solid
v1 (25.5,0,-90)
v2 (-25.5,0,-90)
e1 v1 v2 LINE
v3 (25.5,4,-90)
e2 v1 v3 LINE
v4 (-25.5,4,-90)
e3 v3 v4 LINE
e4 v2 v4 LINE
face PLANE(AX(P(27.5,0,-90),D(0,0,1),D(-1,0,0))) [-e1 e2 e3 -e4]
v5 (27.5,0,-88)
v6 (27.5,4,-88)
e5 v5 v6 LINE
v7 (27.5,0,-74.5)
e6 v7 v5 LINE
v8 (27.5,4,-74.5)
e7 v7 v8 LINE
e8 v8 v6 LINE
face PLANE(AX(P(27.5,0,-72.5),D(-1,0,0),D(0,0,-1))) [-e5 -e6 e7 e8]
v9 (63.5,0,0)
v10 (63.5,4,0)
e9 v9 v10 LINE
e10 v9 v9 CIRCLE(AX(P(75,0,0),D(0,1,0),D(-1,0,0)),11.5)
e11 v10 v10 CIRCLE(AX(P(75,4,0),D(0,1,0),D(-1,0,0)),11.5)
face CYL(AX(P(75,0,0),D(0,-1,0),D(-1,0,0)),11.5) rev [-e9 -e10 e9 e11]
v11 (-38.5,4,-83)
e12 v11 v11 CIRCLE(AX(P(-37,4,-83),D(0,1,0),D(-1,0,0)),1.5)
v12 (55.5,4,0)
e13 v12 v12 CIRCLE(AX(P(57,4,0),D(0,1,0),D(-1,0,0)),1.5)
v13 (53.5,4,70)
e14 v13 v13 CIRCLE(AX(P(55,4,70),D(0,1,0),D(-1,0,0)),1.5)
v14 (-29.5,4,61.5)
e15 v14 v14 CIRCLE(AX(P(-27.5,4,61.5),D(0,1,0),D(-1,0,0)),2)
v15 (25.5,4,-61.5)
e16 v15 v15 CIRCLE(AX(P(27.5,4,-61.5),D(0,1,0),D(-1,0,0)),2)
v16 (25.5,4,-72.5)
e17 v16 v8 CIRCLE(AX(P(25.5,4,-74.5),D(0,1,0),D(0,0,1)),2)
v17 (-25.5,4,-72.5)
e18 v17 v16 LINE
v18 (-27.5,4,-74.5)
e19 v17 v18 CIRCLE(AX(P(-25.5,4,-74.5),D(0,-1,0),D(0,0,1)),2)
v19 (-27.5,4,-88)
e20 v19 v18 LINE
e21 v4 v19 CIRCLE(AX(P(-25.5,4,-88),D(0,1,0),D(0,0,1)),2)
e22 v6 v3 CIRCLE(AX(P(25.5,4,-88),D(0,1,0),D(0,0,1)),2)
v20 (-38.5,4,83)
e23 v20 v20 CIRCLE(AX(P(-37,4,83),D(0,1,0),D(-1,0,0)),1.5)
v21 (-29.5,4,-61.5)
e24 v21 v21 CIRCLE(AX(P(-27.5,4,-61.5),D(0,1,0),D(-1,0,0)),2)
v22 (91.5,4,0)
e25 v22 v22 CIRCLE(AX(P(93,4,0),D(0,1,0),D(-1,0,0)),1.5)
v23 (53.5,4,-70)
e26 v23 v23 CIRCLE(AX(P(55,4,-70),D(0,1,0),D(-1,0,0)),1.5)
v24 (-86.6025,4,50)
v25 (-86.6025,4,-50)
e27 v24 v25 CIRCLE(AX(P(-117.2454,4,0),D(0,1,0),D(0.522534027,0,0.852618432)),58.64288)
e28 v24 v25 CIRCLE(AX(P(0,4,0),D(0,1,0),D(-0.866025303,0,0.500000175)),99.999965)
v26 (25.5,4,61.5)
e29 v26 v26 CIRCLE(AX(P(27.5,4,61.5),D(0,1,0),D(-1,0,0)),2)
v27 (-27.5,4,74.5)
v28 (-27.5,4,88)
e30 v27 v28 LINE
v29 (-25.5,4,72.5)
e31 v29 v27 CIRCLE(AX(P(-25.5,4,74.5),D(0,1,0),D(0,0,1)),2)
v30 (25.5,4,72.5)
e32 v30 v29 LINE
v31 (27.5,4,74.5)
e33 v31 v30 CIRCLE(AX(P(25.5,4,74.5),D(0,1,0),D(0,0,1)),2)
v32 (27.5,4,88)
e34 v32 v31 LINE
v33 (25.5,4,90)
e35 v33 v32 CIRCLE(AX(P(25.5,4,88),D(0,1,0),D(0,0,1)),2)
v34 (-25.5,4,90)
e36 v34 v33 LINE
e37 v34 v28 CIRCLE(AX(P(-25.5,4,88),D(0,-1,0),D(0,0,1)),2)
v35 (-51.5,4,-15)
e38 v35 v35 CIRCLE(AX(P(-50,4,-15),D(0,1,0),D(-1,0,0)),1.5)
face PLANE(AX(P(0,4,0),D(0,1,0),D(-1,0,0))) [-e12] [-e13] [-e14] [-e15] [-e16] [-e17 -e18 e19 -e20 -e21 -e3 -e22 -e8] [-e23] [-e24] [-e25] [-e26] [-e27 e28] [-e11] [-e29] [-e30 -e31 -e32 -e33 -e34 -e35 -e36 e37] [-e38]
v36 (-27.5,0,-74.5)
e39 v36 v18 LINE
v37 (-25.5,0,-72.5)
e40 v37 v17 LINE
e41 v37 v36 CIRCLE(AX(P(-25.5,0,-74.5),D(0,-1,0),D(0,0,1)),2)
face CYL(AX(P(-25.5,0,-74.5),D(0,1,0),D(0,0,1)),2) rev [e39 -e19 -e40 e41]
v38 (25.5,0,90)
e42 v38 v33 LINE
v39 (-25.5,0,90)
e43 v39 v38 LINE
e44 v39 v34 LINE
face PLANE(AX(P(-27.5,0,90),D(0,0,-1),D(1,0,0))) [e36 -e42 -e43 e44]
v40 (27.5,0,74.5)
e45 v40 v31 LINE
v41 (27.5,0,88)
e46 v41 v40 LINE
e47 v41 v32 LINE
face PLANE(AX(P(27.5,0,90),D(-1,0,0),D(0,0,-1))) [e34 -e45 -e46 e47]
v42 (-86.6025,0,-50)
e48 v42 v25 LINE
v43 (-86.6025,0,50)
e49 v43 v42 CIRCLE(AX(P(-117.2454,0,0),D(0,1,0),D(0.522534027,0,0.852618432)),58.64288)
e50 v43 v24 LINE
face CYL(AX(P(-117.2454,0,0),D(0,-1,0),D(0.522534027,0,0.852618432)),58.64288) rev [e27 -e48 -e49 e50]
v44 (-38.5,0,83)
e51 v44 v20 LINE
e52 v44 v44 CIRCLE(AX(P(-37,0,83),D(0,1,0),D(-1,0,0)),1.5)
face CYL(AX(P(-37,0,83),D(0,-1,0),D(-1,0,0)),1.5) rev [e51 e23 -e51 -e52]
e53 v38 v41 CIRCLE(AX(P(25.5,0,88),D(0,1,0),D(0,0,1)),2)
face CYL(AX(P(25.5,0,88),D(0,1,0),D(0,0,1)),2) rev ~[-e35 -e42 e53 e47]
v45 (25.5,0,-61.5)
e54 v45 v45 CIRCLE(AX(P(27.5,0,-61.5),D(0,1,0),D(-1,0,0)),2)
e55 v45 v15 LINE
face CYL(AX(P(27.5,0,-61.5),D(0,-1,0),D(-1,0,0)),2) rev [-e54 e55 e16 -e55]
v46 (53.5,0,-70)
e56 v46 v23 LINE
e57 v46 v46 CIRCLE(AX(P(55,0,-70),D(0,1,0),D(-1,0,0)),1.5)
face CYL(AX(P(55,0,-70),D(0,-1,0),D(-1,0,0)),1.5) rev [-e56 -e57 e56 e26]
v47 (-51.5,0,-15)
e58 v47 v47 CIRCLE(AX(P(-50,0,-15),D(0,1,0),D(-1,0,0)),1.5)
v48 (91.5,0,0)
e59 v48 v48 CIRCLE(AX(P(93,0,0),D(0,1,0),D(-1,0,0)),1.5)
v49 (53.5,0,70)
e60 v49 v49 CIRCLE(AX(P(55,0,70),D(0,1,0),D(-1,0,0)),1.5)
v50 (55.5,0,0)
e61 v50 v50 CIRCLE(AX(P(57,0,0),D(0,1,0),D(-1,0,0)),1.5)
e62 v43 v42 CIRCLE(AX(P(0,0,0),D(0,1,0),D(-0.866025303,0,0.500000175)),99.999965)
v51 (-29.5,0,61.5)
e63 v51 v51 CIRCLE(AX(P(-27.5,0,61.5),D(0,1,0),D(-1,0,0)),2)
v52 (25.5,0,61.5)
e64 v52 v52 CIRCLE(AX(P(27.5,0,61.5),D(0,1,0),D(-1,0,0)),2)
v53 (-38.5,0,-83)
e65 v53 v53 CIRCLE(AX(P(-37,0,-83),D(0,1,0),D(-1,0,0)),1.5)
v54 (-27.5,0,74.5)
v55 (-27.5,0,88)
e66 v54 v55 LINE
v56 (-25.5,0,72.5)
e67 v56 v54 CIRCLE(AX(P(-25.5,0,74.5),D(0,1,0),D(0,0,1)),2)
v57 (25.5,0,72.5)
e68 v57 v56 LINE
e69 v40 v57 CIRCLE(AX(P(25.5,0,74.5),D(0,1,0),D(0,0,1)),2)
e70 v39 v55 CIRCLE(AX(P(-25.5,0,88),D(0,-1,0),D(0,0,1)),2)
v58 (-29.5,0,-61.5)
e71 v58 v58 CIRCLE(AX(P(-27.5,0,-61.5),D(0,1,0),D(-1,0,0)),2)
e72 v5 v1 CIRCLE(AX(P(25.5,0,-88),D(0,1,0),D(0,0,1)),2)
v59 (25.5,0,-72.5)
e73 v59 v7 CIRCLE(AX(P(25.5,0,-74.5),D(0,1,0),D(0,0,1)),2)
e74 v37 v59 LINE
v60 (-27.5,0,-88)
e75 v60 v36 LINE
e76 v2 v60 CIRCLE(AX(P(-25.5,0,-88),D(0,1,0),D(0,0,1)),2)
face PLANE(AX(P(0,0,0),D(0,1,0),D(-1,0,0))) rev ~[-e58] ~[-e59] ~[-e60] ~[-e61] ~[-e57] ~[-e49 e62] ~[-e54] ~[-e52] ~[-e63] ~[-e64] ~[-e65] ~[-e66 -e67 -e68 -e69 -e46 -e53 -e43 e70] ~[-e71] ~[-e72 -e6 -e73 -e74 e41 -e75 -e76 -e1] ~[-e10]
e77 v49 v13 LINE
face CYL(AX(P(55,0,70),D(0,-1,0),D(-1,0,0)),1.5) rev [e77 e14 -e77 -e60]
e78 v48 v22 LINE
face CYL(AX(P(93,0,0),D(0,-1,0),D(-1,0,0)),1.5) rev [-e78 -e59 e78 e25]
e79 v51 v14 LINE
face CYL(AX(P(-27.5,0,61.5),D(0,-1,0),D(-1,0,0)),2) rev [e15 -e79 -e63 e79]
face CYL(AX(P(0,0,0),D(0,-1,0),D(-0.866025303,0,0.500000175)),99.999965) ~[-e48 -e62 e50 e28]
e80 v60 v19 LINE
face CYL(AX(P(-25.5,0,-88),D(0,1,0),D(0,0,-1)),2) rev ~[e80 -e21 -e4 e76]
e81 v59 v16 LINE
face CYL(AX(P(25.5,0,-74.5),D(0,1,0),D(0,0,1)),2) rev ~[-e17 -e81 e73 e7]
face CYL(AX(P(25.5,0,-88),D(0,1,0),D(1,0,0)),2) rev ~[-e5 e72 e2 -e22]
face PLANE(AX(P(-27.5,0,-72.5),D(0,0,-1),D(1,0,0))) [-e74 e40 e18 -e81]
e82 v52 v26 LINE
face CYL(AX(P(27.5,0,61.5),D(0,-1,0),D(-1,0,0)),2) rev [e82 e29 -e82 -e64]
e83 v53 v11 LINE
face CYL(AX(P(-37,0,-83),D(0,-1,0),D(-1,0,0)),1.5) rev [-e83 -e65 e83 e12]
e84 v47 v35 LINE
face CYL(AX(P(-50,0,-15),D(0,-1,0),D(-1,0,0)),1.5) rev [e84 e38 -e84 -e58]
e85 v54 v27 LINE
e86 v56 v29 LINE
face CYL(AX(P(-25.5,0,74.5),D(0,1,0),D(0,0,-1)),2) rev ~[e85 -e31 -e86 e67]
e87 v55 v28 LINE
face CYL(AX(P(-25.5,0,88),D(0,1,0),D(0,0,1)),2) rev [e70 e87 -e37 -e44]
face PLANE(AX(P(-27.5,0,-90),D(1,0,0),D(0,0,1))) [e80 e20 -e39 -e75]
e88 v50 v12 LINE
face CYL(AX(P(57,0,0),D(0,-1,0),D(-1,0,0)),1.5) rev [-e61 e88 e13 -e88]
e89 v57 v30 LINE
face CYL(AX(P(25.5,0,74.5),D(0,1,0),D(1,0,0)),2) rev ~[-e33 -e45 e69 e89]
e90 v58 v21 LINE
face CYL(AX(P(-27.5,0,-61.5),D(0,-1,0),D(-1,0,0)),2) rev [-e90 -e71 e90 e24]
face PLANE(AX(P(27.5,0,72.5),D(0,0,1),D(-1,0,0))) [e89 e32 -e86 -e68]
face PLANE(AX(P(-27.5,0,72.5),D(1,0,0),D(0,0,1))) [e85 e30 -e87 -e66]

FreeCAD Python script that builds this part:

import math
import FreeCAD as App
import Part
import Sketcher
from FreeCAD import Vector


def edges_at(feature, points):
    """Names of the edges that pass closest to the given points."""
    edges = feature.Shape.Edges
    near = lambda p: min(range(len(edges)), key=lambda i: edges[i].distToShape(Part.Vertex(*p))[0])
    return sorted({f"Edge{near(p) + 1}" for p in points})

doc = App.newDocument("Part")
params = doc.addObject("Spreadsheet::Sheet", "Params")
for row, (alias, value) in enumerate([
    ("sketch1_diameter", "3 mm"),
    ("sketch1_diameter2", "4 mm"),
    ("sketch1_diameter3", "23 mm"),
    ("sketch1_radius", "100 mm"),
    ("sketch1_width", "55 mm"),
    ("pad1_length", "4 mm"),
    ("fillet_radius", "2 mm"),
], start=1):
    params.set(f"A{row}", alias)
    params.set(f"B{row}", "=" + value)
    params.setAlias(f"B{row}", alias)

body = doc.addObject("PartDesign::Body", "Body")

sketch1 = body.newObject("Sketcher::SketchObject", "Sketch")
sketch1.AttachmentSupport = (doc.getObject("XZ_Plane"), [""])
sketch1.MapMode = "FlatFace"
sketch1.addGeometry([
    Part.ArcOfCircle(Part.Circle(Vector(-117.2454, 0, 0), Vector(0, 0, 1), 58.64288), math.radians(-58.497617), math.radians(58.497617)),
    Part.ArcOfCircle(Part.Circle(Vector(0, 0, 0), Vector(0, 0, 1), 99.999965), math.radians(-149.999988), math.radians(149.999988)),
    Part.Circle(Vector(55, -70, 0), Vector(0, 0, 1), 1.5),
    Part.LineSegment(Vector(27.5, -72.5, 0), Vector(-27.5, -72.5, 0)),
    Part.LineSegment(Vector(-27.5, -72.5, 0), Vector(-27.5, -90, 0)),
    Part.LineSegment(Vector(-27.5, -90, 0), Vector(27.5, -90, 0)),
    Part.LineSegment(Vector(27.5, -90, 0), Vector(27.5, -72.5, 0)),
    Part.Circle(Vector(27.5, -61.5, 0), Vector(0, 0, 1), 2),
    Part.Circle(Vector(93, 0, 0), Vector(0, 0, 1), 1.5),
    Part.Circle(Vector(75, 0, 0), Vector(0, 0, 1), 11.5),
    Part.Circle(Vector(57, 0, 0), Vector(0, 0, 1), 1.5),
    Part.Circle(Vector(-37, -83, 0), Vector(0, 0, 1), 1.5),
    Part.Circle(Vector(-27.5, -61.5, 0), Vector(0, 0, 1), 2),
    Part.Circle(Vector(-50, -15, 0), Vector(0, 0, 1), 1.5),
    Part.Circle(Vector(55, 70, 0), Vector(0, 0, 1), 1.5),
    Part.Circle(Vector(27.5, 61.5, 0), Vector(0, 0, 1), 2),
    Part.LineSegment(Vector(27.5, 90, 0), Vector(-27.5, 90, 0)),
    Part.LineSegment(Vector(-27.5, 90, 0), Vector(-27.5, 72.5, 0)),
    Part.LineSegment(Vector(-27.5, 72.5, 0), Vector(27.5, 72.5, 0)),
    Part.LineSegment(Vector(27.5, 72.5, 0), Vector(27.5, 90, 0)),
    Part.Circle(Vector(-27.5, 61.5, 0), Vector(0, 0, 1), 2),
    Part.Circle(Vector(-37, 83, 0), Vector(0, 0, 1), 1.5),
], False)
sketch1.addConstraint([
    Sketcher.Constraint("Coincident", 0, 1, 1, 1),
    Sketcher.Constraint("Coincident", 1, 2, 0, 2),
    Sketcher.Constraint("Coincident", 3, 2, 4, 1),
    Sketcher.Constraint("Coincident", 4, 2, 5, 1),
    Sketcher.Constraint("Coincident", 5, 2, 6, 1),
    Sketcher.Constraint("Coincident", 6, 2, 3, 1),
    Sketcher.Constraint("Coincident", 16, 2, 17, 1),
    Sketcher.Constraint("Coincident", 17, 2, 18, 1),
    Sketcher.Constraint("Coincident", 18, 2, 19, 1),
    Sketcher.Constraint("Coincident", 19, 2, 16, 1),
    Sketcher.Constraint("Horizontal", 3),
    Sketcher.Constraint("Vertical", 4),
    Sketcher.Constraint("Horizontal", 5),
    Sketcher.Constraint("Vertical", 6),
    Sketcher.Constraint("Horizontal", 16),
    Sketcher.Constraint("Vertical", 17),
    Sketcher.Constraint("Horizontal", 18),
    Sketcher.Constraint("Vertical", 19),
    Sketcher.Constraint("Coincident", 1, 3, -1, 1),
    Sketcher.Constraint("Equal", 2, 8),
    Sketcher.Constraint("Equal", 8, 10),
    Sketcher.Constraint("Equal", 10, 11),
    Sketcher.Constraint("Equal", 7, 12),
    Sketcher.Constraint("Equal", 11, 13),
    Sketcher.Constraint("Equal", 13, 14),
    Sketcher.Constraint("Equal", 12, 15),
    Sketcher.Constraint("Equal", 15, 20),
    Sketcher.Constraint("Equal", 14, 21),
    Sketcher.Constraint("Symmetric", 12, 3, 15, 3, -1, 1),
    Sketcher.Constraint("Symmetric", 7, 3, 20, 3, -1, 1),
    Sketcher.Constraint("Symmetric", 5, 2, 16, 2, -1, 1),
    Sketcher.Constraint("Symmetric", 3, 2, 18, 2, -1, 1),
    Sketcher.Constraint("Symmetric", 7, 3, 12, 3, -2),
    Sketcher.Constraint("Symmetric", 2, 3, 14, 3, -1),
    Sketcher.Constraint("Symmetric", 11, 3, 21, 3, -1),
    Sketcher.Constraint("PointOnObject", 0, 3, -1),
    Sketcher.Constraint("PointOnObject", 8, 3, -1),
    Sketcher.Constraint("PointOnObject", 9, 3, -1),
    Sketcher.Constraint("PointOnObject", 10, 3, -1),
    Sketcher.Constraint("Vertical", 20, 3, 3, 2),
    Sketcher.Constraint("Vertical", 15, 3, 5, 2),
    Sketcher.Constraint("Diameter", 2, 3.0),
    Sketcher.Constraint("Diameter", 7, 4.0),
    Sketcher.Constraint("Diameter", 9, 23.0),
    Sketcher.Constraint("Radius", 1, 100.0),
    Sketcher.Constraint("DistanceX", 3, 2, 3, 1, 55.0),
    Sketcher.Constraint("DistanceY", 4, 2, 4, 1, 17.5),
    Sketcher.Constraint("DistanceX", -1, 1, 2, 3, 55.0),
    Sketcher.Constraint("DistanceY", 2, 3, -1, 1, 70.0),
    Sketcher.Constraint("DistanceX", -1, 1, 9, 3, 75.0),
    Sketcher.Constraint("DistanceX", 11, 3, -1, 1, 37.0),
    Sketcher.Constraint("DistanceY", 11, 3, -1, 1, 83.0),
    Sketcher.Constraint("DistanceX", 13, 3, -1, 1, 50.0),
    Sketcher.Constraint("DistanceY", 13, 3, -1, 1, 15.0),
    Sketcher.Constraint("DistanceY", 0, 1, -1, 1, 50.0),
    Sketcher.Constraint("DistanceX", 9, 3, 8, 3, 18.0),
    Sketcher.Constraint("DistanceX", 10, 3, 9, 3, 18.0),
    Sketcher.Constraint("DistanceY", 3, 2, 12, 3, 11.0),
    Sketcher.Constraint("DistanceY", 3, 2, -1, 1, 72.5),
    Sketcher.Constraint("Radius", 0, 58.6429),
])
sketch1.setExpression("Constraints[41]", "Params.sketch1_diameter")
sketch1.setExpression("Constraints[42]", "Params.sketch1_diameter2")
sketch1.setExpression("Constraints[43]", "Params.sketch1_diameter3")
sketch1.setExpression("Constraints[44]", "Params.sketch1_radius")
sketch1.setExpression("Constraints[45]", "Params.sketch1_width")
pad1 = body.newObject("PartDesign::Pad", "Pad")
pad1.Profile = sketch1
pad1.setExpression("Length", "Params.pad1_length")
pad1.Reversed = True
doc.recompute()

fillet = body.newObject("PartDesign::Fillet", "Fillet")
fillet.Base = (pad1, edges_at(pad1, [
    (-27.5, 2, 72.5),
    (-27.5, 2, 90),
    (27.5, 2, 90),
    (27.5, 2, 72.5),
    (-27.5, 2, -72.5),
    (27.5, 2, -72.5),
    (27.5, 2, -90),
    (-27.5, 2, -90),
]))
fillet.setExpression("Radius", "Params.fillet_radius")

doc.recompute()
